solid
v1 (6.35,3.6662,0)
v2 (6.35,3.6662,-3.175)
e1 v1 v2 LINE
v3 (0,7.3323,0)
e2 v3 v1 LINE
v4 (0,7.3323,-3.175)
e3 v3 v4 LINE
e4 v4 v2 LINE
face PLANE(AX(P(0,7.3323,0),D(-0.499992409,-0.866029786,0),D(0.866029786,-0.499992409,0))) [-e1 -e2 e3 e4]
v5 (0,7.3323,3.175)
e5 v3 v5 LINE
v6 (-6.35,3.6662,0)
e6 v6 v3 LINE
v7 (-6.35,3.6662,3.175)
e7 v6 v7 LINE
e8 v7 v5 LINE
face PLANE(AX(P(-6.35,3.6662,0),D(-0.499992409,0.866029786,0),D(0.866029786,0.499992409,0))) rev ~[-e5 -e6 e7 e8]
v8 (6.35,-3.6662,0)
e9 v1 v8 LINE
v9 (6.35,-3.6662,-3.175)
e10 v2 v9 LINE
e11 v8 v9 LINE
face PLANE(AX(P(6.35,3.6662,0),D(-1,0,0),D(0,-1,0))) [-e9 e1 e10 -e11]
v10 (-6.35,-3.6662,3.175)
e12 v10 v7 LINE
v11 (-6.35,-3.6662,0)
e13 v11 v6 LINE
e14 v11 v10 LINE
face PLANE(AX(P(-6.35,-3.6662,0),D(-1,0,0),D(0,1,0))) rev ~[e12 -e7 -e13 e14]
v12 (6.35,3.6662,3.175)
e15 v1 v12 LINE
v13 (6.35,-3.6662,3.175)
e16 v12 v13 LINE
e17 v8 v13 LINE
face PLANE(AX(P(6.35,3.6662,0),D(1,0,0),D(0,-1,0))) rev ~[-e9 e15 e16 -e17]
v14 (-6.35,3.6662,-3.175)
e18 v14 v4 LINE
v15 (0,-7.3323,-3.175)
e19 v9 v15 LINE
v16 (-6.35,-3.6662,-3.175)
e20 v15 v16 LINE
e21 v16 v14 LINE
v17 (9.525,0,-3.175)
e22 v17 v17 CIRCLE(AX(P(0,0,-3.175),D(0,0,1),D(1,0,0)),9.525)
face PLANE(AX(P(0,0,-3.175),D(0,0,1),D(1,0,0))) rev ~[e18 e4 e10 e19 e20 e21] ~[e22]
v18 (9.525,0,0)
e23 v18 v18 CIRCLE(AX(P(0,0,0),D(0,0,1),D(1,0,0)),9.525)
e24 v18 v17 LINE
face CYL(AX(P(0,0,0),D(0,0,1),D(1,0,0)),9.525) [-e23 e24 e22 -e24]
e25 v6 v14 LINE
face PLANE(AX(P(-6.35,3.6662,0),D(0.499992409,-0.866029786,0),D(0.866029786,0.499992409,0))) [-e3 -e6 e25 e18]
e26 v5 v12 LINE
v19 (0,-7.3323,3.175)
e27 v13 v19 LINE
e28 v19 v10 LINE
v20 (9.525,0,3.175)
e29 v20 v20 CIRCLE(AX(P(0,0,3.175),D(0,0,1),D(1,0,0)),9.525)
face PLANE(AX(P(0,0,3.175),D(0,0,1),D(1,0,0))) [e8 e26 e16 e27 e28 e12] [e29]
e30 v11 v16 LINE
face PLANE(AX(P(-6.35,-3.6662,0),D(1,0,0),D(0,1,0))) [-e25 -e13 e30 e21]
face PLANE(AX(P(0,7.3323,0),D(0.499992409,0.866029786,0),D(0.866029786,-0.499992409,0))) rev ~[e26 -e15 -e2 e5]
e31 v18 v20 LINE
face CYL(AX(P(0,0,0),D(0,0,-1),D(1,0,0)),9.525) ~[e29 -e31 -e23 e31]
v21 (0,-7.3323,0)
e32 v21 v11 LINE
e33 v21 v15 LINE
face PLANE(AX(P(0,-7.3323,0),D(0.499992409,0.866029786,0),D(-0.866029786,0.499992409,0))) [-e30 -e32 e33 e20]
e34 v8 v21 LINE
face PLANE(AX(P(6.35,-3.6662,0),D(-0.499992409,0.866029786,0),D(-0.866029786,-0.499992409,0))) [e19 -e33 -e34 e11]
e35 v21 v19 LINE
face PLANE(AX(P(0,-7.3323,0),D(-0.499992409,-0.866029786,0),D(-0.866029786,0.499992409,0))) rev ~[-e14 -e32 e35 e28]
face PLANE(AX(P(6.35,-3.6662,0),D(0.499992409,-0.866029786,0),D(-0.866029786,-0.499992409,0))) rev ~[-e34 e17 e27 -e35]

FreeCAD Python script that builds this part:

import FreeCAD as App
import Part
import Sketcher

V = App.Vector
Q = App.Units.Quantity

doc = App.newDocument("Part")
body = doc.addObject("PartDesign::Body", "Body")

# Sketch on XY plane
sketch1 = doc.addObject("Sketcher::SketchObject", "Sketch")
body.addObject(sketch1)
sketch1.AttachmentSupport = (doc.XY_Plane, [""])
sketch1.MapMode = "FlatFace"
sketch1.addGeometry([
    Part.Circle(V(0, 0, 0), V(0, 0, 1), 9.525),  # 0
    Part.LineSegment(V(-6.35, 3.6662, 0), V(0, 7.3323, 0)),  # 1
    Part.LineSegment(V(0, 7.3323, 0), V(6.35, 3.6662, 0)),  # 2
    Part.LineSegment(V(6.35, 3.6662, 0), V(6.35, -3.6662, 0)),  # 3
    Part.LineSegment(V(6.35, -3.6662, 0), V(0, -7.3323, 0)),  # 4
    Part.LineSegment(V(0, -7.3323, 0), V(-6.35, -3.6662, 0)),  # 5
    Part.LineSegment(V(-6.35, -3.6662, 0), V(-6.35, 3.6662, 0)),  # 6
], False)
sketch1.addConstraint([
    Sketcher.Constraint("Coincident", 1, 2, 2, 1),
    Sketcher.Constraint("Coincident", 2, 2, 3, 1),
    Sketcher.Constraint("Coincident", 3, 2, 4, 1),
    Sketcher.Constraint("Coincident", 4, 2, 5, 1),
    Sketcher.Constraint("Coincident", 5, 2, 6, 1),
    Sketcher.Constraint("Coincident", 6, 2, 1, 1),
    Sketcher.Constraint("Vertical", 3),
    Sketcher.Constraint("Vertical", 6),
    Sketcher.Constraint("Coincident", 0, 3, -1, 1),
    Sketcher.Constraint("Symmetric", 1, 2, 4, 2, -1, 1),
    Sketcher.Constraint("Symmetric", 2, 2, 5, 2, -1, 1),
    Sketcher.Constraint("PointOnObject", 1, 2, -2),
    Sketcher.Constraint("Parallel", 1, 4),
    Sketcher.Constraint("Horizontal", 3, 2, 5, 2),
    Sketcher.Constraint("Diameter", 0, Q("0.75 in")),
    Sketcher.Constraint("DistanceX", 5, 2, 3, 2, Q("0.5 in")),
    Sketcher.Constraint("Angle", 1, Q("29.9995 deg")),
    Sketcher.Constraint("DistanceY", 3, 2, 1, 2, Q("0.433 in")),
])
pad1 = doc.addObject("PartDesign::Pad", "Pad")
body.addObject(pad1)
pad1.Profile = sketch1
pad1.Length = Q("0.25 in")
pad1.Midplane = True

doc.recompute()
